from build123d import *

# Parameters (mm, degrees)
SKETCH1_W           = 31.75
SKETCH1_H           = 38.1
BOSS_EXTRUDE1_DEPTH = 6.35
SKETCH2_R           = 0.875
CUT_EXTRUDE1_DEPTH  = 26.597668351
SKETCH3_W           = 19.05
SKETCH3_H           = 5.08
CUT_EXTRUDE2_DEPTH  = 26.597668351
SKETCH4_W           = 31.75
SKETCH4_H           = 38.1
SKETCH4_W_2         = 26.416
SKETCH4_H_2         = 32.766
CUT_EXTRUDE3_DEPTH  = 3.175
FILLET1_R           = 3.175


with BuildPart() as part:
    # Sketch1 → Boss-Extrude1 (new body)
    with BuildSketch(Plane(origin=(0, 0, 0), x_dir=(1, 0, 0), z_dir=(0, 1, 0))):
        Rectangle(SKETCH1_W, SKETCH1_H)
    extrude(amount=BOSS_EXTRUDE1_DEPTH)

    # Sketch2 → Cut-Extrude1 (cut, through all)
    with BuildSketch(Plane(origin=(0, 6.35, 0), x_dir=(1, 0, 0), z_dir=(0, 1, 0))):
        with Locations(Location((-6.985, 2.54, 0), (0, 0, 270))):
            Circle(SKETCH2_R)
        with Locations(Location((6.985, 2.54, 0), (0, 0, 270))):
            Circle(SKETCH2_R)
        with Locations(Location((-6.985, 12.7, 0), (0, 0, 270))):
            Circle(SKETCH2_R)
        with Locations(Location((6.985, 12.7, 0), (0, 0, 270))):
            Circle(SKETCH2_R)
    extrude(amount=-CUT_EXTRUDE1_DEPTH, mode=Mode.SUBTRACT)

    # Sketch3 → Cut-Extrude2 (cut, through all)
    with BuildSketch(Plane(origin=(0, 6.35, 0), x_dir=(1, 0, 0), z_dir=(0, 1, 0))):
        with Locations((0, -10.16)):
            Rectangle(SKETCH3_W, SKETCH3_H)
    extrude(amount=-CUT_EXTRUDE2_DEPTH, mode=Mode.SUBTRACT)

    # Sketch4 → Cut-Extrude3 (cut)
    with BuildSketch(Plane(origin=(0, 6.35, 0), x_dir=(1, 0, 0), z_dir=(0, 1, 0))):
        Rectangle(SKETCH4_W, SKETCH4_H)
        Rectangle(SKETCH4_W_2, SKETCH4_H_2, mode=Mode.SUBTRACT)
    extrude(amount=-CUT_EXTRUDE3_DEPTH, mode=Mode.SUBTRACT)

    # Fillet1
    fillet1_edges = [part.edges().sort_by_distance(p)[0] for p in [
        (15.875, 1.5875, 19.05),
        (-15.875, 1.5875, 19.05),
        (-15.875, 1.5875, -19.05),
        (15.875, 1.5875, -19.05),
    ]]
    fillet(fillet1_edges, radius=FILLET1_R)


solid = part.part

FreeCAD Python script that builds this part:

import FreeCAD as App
import Part
import Sketcher
Q = App.Units.Quantity


def edges_at(feature, points):
    """Names of the edges that pass closest to the given points."""
    edges = feature.Shape.Edges
    near = lambda p: min(range(len(edges)), key=lambda i: edges[i].distToShape(Part.Vertex(*p))[0])
    return sorted({f"Edge{near(p) + 1}" for p in points})


def add_polygon(sketch, points):
    """Adds a closed chain of lines whose ends are joined by coincident constraints."""
    first, n = sketch.GeometryCount, len(points)
    for a, b in zip(points, points[1:] + points[:1]):
        sketch.addGeometry(Part.LineSegment(App.Vector(*a, 0), App.Vector(*b, 0)), False)
    for i in range(n):
        sketch.addConstraint(Sketcher.Constraint("Coincident", first + i, 2, first + (i + 1) % n, 1))

doc = App.newDocument("Part")
params = doc.addObject("Spreadsheet::Sheet", "Params")
for row, (alias, value) in enumerate([
    ("sketch1_height", "1.5 in"),
    ("sketch1_width", "1.25 in"),
    ("pad1_length", "0.25 in"),
    ("sketch3_height", "0.2 in"),
    ("sketch3_width", "0.75 in"),
    ("sketch4_height", "1.5 in"),
    ("sketch4_width", "1.25 in"),
    ("sketch4_width2", "1.04 in"),
    ("sketch4_height2", "1.29 in"),
    ("pocket3_length", "0.125 in"),
    ("fillet_radius", "0.125 in"),
], start=1):
    params.set(f"A{row}", alias)
    params.set(f"B{row}", "=" + value)
    params.setAlias(f"B{row}", alias)

body = doc.addObject("PartDesign::Body", "Body")

# Sketch on XZ plane
sketch1 = body.newObject("Sketcher::SketchObject", "Sketch")
sketch1.AttachmentSupport = (doc.getObject("XZ_Plane"), [""])
sketch1.MapMode = "FlatFace"
add_polygon(sketch1, [(-15.875, -19.05), (-15.875, 19.05), (15.875, 19.05), (15.875, -19.05)])  # lines 0-3
sketch1.addConstraint(Sketcher.Constraint("Vertical", 0))
sketch1.addConstraint(Sketcher.Constraint("Horizontal", 1))
sketch1.addConstraint(Sketcher.Constraint("Vertical", 2))
sketch1.addConstraint(Sketcher.Constraint("Horizontal", 3))
sketch1.addConstraint(Sketcher.Constraint("Symmetric", 0, 2, 2, 2, -1, 1))
sketch1.addConstraint(Sketcher.Constraint("DistanceY", 0, 1, 0, 2, Q("1.5 in")))
sketch1.addConstraint(Sketcher.Constraint("DistanceX", 1, 1, 1, 2, Q("1.25 in")))
sketch1.setExpression("Constraints[9]", "Params.sketch1_height")
sketch1.setExpression("Constraints[10]", "Params.sketch1_width")
pad1 = body.newObject("PartDesign::Pad", "Pad")
pad1.Profile = sketch1
pad1.setExpression("Length", "Params.pad1_length")
pad1.Reversed = True

# Sketch on XZ plane
sketch2 = body.newObject("Sketcher::SketchObject", "Sketch001")
sketch2.AttachmentSupport = (doc.getObject("XZ_Plane"), [""])
sketch2.MapMode = "FlatFace"
sketch2.AttachmentOffset = App.Placement(App.Vector(0, 0, -0.25 * 25.4), App.Rotation())
sketch2.addGeometry(Part.Circle(App.Vector(-6.985, -2.54, 0), App.Vector(0, 0, 1), 0.875), False)
sketch2.addGeometry(Part.Circle(App.Vector(6.985, -2.54, 0), App.Vector(0, 0, 1), 0.875), False)
sketch2.addGeometry(Part.Circle(App.Vector(-6.985, -12.7, 0), App.Vector(0, 0, 1), 0.875), False)
sketch2.addGeometry(Part.Circle(App.Vector(6.985, -12.7, 0), App.Vector(0, 0, 1), 0.875), False)
sketch2.addConstraint(Sketcher.Constraint("Equal", 0, 1))
sketch2.addConstraint(Sketcher.Constraint("Equal", 1, 2))
sketch2.addConstraint(Sketcher.Constraint("Equal", 2, 3))
sketch2.addConstraint(Sketcher.Constraint("Symmetric", 0, 3, 1, 3, -2))
sketch2.addConstraint(Sketcher.Constraint("Symmetric", 2, 3, 3, 3, -2))
sketch2.addConstraint(Sketcher.Constraint("Vertical", 0, 3, 2, 3))
sketch2.addConstraint(Sketcher.Constraint("DistanceY", 0, 3, -1, 1, Q("0.1 in")))
sketch2.addConstraint(Sketcher.Constraint("DistanceY", 2, 3, -1, 1, Q("0.5 in")))
sketch2.addConstraint(Sketcher.Constraint("Diameter", 0, Q("1.75 mm")))
sketch2.addConstraint(Sketcher.Constraint("DistanceX", 0, 3, 1, 3, Q("0.55 in")))
pocket1 = body.newObject("PartDesign::Pocket", "Pocket")
pocket1.Profile = sketch2
pocket1.Type = "ThroughAll"
pocket1.Reversed = True

# Sketch on XZ plane
sketch3 = body.newObject("Sketcher::SketchObject", "Sketch002")
sketch3.AttachmentSupport = (doc.getObject("XZ_Plane"), [""])
sketch3.MapMode = "FlatFace"
sketch3.AttachmentOffset = App.Placement(App.Vector(0, 0, -0.25 * 25.4), App.Rotation())
add_polygon(sketch3, [(-9.525, 7.62), (-9.525, 12.7), (9.525, 12.7), (9.525, 7.62)])  # lines 0-3
sketch3.addConstraint(Sketcher.Constraint("Vertical", 0))
sketch3.addConstraint(Sketcher.Constraint("Horizontal", 1))
sketch3.addConstraint(Sketcher.Constraint("Vertical", 2))
sketch3.addConstraint(Sketcher.Constraint("Horizontal", 3))
sketch3.addConstraint(Sketcher.Constraint("DistanceY", 0, 1, 0, 2, Q("0.2 in")))
sketch3.addConstraint(Sketcher.Constraint("DistanceX", 1, 1, 1, 2, Q("0.75 in")))
sketch3.addConstraint(Sketcher.Constraint("DistanceY", -1, 1, 0, 2, Q("0.5 in")))
sketch3.addConstraint(Sketcher.Constraint("DistanceX", 0, 2, -1, 1, Q("0.375 in")))
sketch3.setExpression("Constraints[8]", "Params.sketch3_height")
sketch3.setExpression("Constraints[9]", "Params.sketch3_width")
pocket2 = body.newObject("PartDesign::Pocket", "Pocket001")
pocket2.Profile = sketch3
pocket2.Type = "ThroughAll"
pocket2.Reversed = True

# Sketch on XZ plane
sketch4 = body.newObject("Sketcher::SketchObject", "Sketch003")
sketch4.AttachmentSupport = (doc.getObject("XZ_Plane"), [""])
sketch4.MapMode = "FlatFace"
sketch4.AttachmentOffset = App.Placement(App.Vector(0, 0, -0.25 * 25.4), App.Rotation())
add_polygon(sketch4, [(-15.875, -19.05), (-15.875, 19.05), (15.875, 19.05), (15.875, -19.05)])  # lines 0-3
add_polygon(sketch4, [(13.208, 16.383), (-13.208, 16.383), (-13.208, -16.383), (13.208, -16.383)])  # lines 4-7
sketch4.addConstraint(Sketcher.Constraint("Vertical", 0))
sketch4.addConstraint(Sketcher.Constraint("Horizontal", 1))
sketch4.addConstraint(Sketcher.Constraint("Vertical", 2))
sketch4.addConstraint(Sketcher.Constraint("Horizontal", 3))
sketch4.addConstraint(Sketcher.Constraint("Horizontal", 4))
sketch4.addConstraint(Sketcher.Constraint("Vertical", 5))
sketch4.addConstraint(Sketcher.Constraint("Horizontal", 6))
sketch4.addConstraint(Sketcher.Constraint("Vertical", 7))
sketch4.addConstraint(Sketcher.Constraint("Symmetric", 0, 2, 2, 2, -1, 1))
sketch4.addConstraint(Sketcher.Constraint("Symmetric", 4, 2, 6, 2, -1, 1))
sketch4.addConstraint(Sketcher.Constraint("DistanceY", 0, 1, 0, 2, Q("1.5 in")))
sketch4.addConstraint(Sketcher.Constraint("DistanceX", 1, 1, 1, 2, Q("1.25 in")))
sketch4.addConstraint(Sketcher.Constraint("DistanceX", 4, 2, 4, 1, Q("1.04 in")))
sketch4.addConstraint(Sketcher.Constraint("DistanceY", 5, 2, 5, 1, Q("1.29 in")))
sketch4.setExpression("Constraints[18]", "Params.sketch4_height")
sketch4.setExpression("Constraints[19]", "Params.sketch4_width")
sketch4.setExpression("Constraints[20]", "Params.sketch4_width2")
sketch4.setExpression("Constraints[21]", "Params.sketch4_height2")
pocket3 = body.newObject("PartDesign::Pocket", "Pocket002")
pocket3.Profile = sketch4
pocket3.setExpression("Length", "Params.pocket3_length")
pocket3.Reversed = True
doc.recompute()

fillet = body.newObject("PartDesign::Fillet", "Fillet")
fillet.Base = (pocket3, edges_at(pocket3, [
    (15.875, 1.587, 19.05),
    (-15.875, 1.587, 19.05),
    (-15.875, 1.587, -19.05),
    (15.875, 1.587, -19.05),
]))
fillet.setExpression("Radius", "Params.fillet_radius")

doc.recompute()
